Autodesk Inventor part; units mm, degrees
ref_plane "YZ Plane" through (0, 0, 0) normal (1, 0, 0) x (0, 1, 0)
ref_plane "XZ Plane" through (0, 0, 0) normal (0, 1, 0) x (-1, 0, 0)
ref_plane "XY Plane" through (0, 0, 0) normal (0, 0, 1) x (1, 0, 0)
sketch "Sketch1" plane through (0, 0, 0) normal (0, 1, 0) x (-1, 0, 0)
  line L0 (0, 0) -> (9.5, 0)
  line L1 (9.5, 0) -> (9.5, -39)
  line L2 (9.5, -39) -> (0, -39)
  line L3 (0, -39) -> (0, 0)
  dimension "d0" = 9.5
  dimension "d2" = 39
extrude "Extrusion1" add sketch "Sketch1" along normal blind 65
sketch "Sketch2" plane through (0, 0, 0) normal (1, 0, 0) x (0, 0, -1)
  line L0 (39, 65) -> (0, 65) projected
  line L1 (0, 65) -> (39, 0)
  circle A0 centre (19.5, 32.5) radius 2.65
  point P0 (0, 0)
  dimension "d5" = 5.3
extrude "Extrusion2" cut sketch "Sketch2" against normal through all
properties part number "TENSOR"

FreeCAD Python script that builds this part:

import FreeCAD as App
import Part
import Sketcher

V = App.Vector

doc = App.newDocument("Part")
body = doc.addObject("PartDesign::Body", "Body")

sketch1 = doc.addObject("Sketcher::SketchObject", "Sketch")
body.addObject(sketch1)
sketch1.AttachmentSupport = (doc.XZ_Plane, [""])
sketch1.MapMode = "FlatFace"
sketch1.addGeometry(Part.LineSegment(V(-10, 0, 0), V(0, 0, 0)), False)
sketch1.addGeometry(Part.LineSegment(V(0, 0, 0), V(0, -39, 0)), False)
sketch1.addGeometry(Part.LineSegment(V(0, -39, 0), V(-10, -39, 0)), False)
sketch1.addGeometry(Part.LineSegment(V(-10, -39, 0), V(-10, 0, 0)), False)
sketch1.addConstraint(Sketcher.Constraint("Coincident", 0, 2, 1, 1))
sketch1.addConstraint(Sketcher.Constraint("Coincident", 1, 2, 2, 1))
sketch1.addConstraint(Sketcher.Constraint("Coincident", 2, 2, 3, 1))
sketch1.addConstraint(Sketcher.Constraint("Coincident", 3, 2, 0, 1))
sketch1.addConstraint(Sketcher.Constraint("Horizontal", 0))
sketch1.addConstraint(Sketcher.Constraint("Vertical", 1))
sketch1.addConstraint(Sketcher.Constraint("Horizontal", 2))
sketch1.addConstraint(Sketcher.Constraint("Vertical", 3))
sketch1.addConstraint(Sketcher.Constraint("Coincident", 0, 2, -1, 1))
sketch1.addConstraint(Sketcher.Constraint("DistanceY", 1, 2, 1, 1, 39.0))
sketch1.addConstraint(Sketcher.Constraint("DistanceX", 0, 1, 0, 2, 9.5))
pad1 = doc.addObject("PartDesign::Pad", "Pad")
body.addObject(pad1)
pad1.Profile = sketch1
pad1.Length = 65
pad1.Reversed = True

sketch2 = doc.addObject("Sketcher::SketchObject", "Sketch001")
body.addObject(sketch2)
sketch2.AttachmentSupport = (doc.YZ_Plane, [""])
sketch2.MapMode = "FlatFace"
sketch2.addGeometry(Part.Circle(V(32.5, -19.5, 0), V(0, 0, 1), 2.6), False)
sketch2.addConstraint(Sketcher.Constraint("Diameter", 0, 5.3))
sketch2.addConstraint(Sketcher.Constraint("DistanceX", -1, 1, 0, 3, 32.5))
sketch2.addConstraint(Sketcher.Constraint("DistanceY", 0, 3, -1, 1, 19.5))
pocket1 = doc.addObject("PartDesign::Pocket", "Pocket")
body.addObject(pocket1)
pocket1.Profile = sketch2
pocket1.Type = "ThroughAll"

doc.recompute()
